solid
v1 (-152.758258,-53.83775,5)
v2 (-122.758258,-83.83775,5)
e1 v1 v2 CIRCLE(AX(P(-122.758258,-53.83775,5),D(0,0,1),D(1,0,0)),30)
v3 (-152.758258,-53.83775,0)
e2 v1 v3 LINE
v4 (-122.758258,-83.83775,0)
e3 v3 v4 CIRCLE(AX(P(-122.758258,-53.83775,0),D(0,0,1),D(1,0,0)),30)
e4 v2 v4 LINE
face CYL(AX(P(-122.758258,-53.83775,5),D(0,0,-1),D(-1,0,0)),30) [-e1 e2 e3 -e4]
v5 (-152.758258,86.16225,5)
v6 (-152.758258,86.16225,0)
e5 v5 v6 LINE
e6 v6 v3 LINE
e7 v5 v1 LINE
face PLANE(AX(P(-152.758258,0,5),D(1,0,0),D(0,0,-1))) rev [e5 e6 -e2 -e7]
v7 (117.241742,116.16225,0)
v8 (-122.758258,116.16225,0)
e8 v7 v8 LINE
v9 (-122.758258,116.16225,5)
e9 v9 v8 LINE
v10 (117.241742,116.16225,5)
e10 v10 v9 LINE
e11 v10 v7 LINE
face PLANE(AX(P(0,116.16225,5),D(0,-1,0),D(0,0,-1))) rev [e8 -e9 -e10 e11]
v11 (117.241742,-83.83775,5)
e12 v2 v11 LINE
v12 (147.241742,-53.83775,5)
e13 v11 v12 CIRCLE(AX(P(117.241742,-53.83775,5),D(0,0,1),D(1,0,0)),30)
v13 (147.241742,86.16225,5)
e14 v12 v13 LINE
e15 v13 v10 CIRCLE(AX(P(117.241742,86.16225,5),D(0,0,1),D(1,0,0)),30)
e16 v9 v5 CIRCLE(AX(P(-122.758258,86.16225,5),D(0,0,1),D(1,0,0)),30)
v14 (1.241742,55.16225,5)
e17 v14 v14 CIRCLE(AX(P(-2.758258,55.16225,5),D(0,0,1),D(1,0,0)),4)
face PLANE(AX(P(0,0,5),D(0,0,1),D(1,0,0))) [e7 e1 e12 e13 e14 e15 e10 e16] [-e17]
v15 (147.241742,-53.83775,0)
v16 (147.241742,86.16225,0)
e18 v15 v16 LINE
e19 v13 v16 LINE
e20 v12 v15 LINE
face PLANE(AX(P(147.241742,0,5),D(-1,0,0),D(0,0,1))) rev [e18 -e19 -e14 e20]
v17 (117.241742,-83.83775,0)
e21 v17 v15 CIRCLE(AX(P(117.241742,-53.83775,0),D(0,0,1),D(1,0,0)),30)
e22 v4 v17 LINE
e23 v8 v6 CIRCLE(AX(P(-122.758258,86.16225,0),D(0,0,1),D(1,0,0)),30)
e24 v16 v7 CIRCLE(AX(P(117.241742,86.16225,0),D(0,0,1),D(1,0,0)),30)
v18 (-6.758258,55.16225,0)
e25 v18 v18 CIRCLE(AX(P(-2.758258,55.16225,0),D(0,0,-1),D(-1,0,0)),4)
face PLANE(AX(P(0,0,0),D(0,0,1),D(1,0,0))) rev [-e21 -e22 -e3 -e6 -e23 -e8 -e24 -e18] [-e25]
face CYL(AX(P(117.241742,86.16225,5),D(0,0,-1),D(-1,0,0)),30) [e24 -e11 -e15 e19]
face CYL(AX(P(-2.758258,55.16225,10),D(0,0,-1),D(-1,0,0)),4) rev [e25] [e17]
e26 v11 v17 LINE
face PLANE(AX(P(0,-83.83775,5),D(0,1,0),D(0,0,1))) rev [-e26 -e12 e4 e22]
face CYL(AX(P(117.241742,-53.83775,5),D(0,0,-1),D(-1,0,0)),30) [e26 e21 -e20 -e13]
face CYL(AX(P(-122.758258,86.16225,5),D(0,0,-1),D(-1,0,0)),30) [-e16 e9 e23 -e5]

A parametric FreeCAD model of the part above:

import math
import FreeCAD as App
import Part
import Sketcher
from FreeCAD import Vector
Q = App.Units.Quantity

doc = App.newDocument("Part")
body = doc.addObject("PartDesign::Body", "Body")

# Sketch on XY plane
sketch1 = doc.addObject("Sketcher::SketchObject", "Sketch")
body.addObject(sketch1)
sketch1.AttachmentSupport = (doc.XY_Plane, [""])
sketch1.MapMode = "FlatFace"
sketch1.addGeometry([
    Part.LineSegment(Vector(-153, 86, 0), Vector(-153, -54, 0)),  # 0
    Part.ArcOfCircle(Part.Circle(Vector(-123, -54, 0), Vector(0, 0, 1), 30), math.radians(180), math.radians(270)),  # 1
    Part.LineSegment(Vector(-123, -84, 0), Vector(117, -84, 0)),  # 2
    Part.ArcOfCircle(Part.Circle(Vector(117, -54, 0), Vector(0, 0, 1), 30), math.radians(-90), math.radians(0)),  # 3
    Part.LineSegment(Vector(147, -54, 0), Vector(147, 86, 0)),  # 4
    Part.ArcOfCircle(Part.Circle(Vector(117, 86, 0), Vector(0, 0, 1), 30), math.radians(0), math.radians(90)),  # 5
    Part.LineSegment(Vector(117, 116, 0), Vector(-123, 116, 0)),  # 6
    Part.ArcOfCircle(Part.Circle(Vector(-123, 86, 0), Vector(0, 0, 1), 30), math.radians(90), math.radians(180)),  # 7
], False)
sketch1.addConstraint([
    Sketcher.Constraint("Tangent", 0, 2, 1, 1),
    Sketcher.Constraint("Tangent", 1, 2, 2, 1),
    Sketcher.Constraint("Tangent", 2, 2, 3, 1),
    Sketcher.Constraint("Tangent", 3, 2, 4, 1),
    Sketcher.Constraint("Tangent", 4, 2, 5, 1),
    Sketcher.Constraint("Tangent", 5, 2, 6, 1),
    Sketcher.Constraint("Tangent", 6, 2, 7, 1),
    Sketcher.Constraint("Tangent", 7, 2, 0, 1),
    Sketcher.Constraint("Vertical", 0),
    Sketcher.Constraint("Horizontal", 2),
    Sketcher.Constraint("Vertical", 4),
    Sketcher.Constraint("Horizontal", 6),
    Sketcher.Constraint("Equal", 1, 3),
    Sketcher.Constraint("Equal", 3, 5),
    Sketcher.Constraint("Equal", 5, 7),
    Sketcher.Constraint("Radius", 1, Q("30 mm")),
    Sketcher.Constraint("DistanceX", 2, 1, 2, 2, Q("240 mm")),
    Sketcher.Constraint("DistanceY", 0, 2, 0, 1, Q("140 mm")),
    Sketcher.Constraint("DistanceX", 1, 3, -1, 1, Q("122.758258 mm")),
    Sketcher.Constraint("DistanceY", 1, 3, -1, 1, Q("53.83775 mm")),
])
pad1 = doc.addObject("PartDesign::Pad", "Pad")
body.addObject(pad1)
pad1.Profile = sketch1
pad1.Length = 5

# Sketch on XY plane
sketch2 = doc.addObject("Sketcher::SketchObject", "Sketch001")
body.addObject(sketch2)
sketch2.AttachmentSupport = (doc.XY_Plane, [""])
sketch2.MapMode = "FlatFace"
sketch2.addGeometry(Part.Circle(Vector(-2.8, 55.2, 0), Vector(0, 0, 1), 4), False)
sketch2.addConstraint([
    Sketcher.Constraint("Diameter", 0, Q("8 mm")),
    Sketcher.Constraint("DistanceX", 0, 3, -1, 1, Q("2.758258 mm")),
    Sketcher.Constraint("DistanceY", -1, 1, 0, 3, Q("55.16225 mm")),
])
pocket1 = doc.addObject("PartDesign::Pocket", "Pocket")
body.addObject(pocket1)
pocket1.Profile = sketch2
pocket1.Length = 10
pocket1.Reversed = True

doc.recompute()
